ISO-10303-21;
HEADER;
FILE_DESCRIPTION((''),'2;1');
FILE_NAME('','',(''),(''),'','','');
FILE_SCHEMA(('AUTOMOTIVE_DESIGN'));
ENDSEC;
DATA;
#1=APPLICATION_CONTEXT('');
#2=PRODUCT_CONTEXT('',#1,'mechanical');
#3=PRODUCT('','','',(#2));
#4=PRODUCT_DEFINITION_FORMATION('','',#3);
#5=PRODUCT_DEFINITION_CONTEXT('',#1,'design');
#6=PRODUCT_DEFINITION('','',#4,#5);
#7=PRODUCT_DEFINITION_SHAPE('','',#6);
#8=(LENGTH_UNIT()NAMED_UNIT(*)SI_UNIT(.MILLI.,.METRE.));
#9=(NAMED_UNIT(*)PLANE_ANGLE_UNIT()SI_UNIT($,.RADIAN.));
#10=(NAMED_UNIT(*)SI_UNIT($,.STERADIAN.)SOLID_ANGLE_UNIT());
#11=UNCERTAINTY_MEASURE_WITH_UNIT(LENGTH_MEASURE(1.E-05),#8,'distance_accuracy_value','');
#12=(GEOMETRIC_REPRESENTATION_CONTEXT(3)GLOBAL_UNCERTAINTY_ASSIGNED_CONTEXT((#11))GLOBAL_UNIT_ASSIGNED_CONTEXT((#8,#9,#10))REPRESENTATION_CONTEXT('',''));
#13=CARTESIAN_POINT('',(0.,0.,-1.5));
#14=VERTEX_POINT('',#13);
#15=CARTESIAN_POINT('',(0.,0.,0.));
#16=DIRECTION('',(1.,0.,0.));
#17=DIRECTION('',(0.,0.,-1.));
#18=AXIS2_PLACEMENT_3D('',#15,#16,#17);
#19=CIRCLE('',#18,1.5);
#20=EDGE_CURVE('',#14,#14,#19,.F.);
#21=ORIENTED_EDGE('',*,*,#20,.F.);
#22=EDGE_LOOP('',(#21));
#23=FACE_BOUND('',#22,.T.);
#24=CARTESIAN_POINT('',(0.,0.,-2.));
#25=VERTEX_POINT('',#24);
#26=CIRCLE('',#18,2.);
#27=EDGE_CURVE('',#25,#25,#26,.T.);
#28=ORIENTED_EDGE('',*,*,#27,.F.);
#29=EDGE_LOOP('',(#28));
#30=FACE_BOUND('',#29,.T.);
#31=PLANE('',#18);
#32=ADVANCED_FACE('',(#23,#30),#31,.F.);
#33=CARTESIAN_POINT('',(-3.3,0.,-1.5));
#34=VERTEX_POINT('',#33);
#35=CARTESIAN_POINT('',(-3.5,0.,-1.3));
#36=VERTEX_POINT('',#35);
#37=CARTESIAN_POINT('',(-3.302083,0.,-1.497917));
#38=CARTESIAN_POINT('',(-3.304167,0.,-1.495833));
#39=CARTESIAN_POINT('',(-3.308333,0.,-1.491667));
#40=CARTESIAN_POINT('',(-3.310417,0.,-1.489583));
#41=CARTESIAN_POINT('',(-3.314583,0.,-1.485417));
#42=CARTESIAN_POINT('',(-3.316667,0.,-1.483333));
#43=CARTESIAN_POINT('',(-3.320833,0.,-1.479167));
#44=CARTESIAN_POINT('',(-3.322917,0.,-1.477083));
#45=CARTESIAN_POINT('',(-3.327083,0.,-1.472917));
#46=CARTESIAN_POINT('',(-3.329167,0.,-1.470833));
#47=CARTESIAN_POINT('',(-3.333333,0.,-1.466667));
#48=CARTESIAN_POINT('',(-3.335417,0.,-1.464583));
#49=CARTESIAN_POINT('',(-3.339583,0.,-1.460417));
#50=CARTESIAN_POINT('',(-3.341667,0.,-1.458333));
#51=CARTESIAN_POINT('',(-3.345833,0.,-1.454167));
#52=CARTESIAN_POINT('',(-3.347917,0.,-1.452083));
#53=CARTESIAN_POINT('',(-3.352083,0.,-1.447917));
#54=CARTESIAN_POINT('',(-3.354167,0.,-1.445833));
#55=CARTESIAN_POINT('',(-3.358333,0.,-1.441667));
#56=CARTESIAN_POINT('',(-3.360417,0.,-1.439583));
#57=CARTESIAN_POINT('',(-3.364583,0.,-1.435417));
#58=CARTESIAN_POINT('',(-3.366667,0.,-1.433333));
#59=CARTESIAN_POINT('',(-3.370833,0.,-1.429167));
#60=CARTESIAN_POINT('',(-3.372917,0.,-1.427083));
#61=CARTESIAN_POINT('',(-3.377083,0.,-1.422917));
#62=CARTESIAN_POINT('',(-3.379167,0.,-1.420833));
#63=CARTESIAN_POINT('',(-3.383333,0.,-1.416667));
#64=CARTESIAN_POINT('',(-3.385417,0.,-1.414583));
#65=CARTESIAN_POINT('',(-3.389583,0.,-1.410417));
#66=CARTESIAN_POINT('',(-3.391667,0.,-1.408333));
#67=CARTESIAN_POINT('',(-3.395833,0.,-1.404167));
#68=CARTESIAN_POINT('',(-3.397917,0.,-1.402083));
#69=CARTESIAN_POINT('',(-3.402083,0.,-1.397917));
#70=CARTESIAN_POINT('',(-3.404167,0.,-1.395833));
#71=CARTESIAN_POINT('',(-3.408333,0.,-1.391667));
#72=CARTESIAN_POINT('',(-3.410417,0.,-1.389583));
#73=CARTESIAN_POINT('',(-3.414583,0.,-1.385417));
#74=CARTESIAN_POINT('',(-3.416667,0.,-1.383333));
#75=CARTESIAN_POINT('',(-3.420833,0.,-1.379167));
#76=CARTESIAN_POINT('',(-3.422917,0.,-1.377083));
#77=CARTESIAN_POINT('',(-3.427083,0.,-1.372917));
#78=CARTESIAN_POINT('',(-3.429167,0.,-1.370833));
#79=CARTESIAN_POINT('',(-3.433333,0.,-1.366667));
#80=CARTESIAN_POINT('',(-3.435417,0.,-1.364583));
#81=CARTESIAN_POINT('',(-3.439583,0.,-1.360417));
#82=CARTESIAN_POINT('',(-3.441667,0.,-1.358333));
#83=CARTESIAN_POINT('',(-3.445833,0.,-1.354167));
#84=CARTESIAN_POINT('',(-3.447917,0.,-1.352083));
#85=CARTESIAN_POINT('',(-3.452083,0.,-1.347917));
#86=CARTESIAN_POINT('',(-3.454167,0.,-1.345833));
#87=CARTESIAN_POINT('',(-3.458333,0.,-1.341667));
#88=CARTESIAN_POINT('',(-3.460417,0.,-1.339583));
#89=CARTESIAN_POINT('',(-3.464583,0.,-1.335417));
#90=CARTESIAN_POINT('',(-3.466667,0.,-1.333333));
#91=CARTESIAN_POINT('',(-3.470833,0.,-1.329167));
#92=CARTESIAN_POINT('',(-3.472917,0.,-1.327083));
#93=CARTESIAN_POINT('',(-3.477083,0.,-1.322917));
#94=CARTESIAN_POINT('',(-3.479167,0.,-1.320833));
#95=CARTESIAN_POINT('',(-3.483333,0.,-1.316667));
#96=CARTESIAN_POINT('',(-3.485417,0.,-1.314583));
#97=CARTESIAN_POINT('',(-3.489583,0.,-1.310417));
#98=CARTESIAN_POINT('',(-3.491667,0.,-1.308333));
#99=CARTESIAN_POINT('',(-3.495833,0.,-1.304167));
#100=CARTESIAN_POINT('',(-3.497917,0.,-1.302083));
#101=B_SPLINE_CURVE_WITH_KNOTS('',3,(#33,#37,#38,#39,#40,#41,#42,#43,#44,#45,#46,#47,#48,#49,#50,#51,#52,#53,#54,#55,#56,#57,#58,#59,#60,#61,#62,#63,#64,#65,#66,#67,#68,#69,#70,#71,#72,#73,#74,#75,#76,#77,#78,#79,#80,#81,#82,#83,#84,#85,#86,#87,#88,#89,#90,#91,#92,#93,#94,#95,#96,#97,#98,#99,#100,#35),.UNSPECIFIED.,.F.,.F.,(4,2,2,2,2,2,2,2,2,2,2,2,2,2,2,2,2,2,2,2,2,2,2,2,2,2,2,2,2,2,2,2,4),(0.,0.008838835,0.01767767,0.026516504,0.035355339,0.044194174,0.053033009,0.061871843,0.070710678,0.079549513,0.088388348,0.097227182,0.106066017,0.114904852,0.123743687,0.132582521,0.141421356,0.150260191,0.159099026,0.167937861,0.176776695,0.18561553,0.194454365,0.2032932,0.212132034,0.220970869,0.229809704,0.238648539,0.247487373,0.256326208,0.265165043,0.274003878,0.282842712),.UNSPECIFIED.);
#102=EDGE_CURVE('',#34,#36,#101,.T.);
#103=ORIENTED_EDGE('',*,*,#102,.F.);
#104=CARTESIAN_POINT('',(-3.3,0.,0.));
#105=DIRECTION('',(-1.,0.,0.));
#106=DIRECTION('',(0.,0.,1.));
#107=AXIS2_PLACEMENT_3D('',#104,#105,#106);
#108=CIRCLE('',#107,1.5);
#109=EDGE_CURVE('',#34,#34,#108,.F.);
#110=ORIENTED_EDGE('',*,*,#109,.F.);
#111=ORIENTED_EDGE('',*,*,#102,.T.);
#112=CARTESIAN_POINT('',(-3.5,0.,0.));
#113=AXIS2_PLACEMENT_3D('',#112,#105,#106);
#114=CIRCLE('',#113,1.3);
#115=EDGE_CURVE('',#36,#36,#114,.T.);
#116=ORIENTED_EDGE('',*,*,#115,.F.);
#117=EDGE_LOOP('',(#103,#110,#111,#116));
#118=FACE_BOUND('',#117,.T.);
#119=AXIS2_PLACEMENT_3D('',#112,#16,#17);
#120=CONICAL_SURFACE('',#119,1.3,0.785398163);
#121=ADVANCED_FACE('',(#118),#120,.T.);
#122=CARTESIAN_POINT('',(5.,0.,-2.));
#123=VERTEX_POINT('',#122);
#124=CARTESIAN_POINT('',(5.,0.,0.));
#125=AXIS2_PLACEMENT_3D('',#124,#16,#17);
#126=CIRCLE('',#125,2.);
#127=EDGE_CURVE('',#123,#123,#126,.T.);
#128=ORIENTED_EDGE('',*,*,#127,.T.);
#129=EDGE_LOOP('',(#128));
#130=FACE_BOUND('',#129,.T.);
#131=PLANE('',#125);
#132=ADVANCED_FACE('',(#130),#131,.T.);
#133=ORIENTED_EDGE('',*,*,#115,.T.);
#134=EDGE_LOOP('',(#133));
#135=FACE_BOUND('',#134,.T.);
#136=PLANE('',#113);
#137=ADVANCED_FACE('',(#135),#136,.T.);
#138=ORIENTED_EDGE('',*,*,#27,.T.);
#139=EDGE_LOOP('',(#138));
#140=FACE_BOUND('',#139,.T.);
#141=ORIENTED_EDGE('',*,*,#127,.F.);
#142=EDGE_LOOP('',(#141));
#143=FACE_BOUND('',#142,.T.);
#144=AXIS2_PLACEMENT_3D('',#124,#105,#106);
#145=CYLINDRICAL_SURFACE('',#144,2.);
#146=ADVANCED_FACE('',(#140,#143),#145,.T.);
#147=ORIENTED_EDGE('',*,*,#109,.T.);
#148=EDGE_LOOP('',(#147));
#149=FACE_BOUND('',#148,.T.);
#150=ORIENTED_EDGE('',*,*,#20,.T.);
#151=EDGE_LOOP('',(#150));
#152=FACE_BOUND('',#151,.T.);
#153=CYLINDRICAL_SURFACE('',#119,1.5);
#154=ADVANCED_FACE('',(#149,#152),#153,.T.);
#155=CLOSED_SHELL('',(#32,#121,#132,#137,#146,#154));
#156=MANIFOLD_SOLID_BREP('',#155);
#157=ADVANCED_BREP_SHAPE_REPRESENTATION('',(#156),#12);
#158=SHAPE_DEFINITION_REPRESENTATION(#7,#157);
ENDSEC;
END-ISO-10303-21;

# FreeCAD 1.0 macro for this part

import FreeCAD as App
import Part
import Sketcher
Q = App.Units.Quantity


def edges_at(feature, points):
    """Names of the edges that pass closest to the given points."""
    edges = feature.Shape.Edges
    near = lambda p: min(range(len(edges)), key=lambda i: edges[i].distToShape(Part.Vertex(*p))[0])
    return sorted({f"Edge{near(p) + 1}" for p in points})

doc = App.newDocument("Part")
body = doc.addObject("PartDesign::Body", "Body")

# Sketch on YZ plane
sketch1 = body.newObject("Sketcher::SketchObject", "Sketch")
sketch1.AttachmentSupport = (doc.getObject("YZ_Plane"), [""])
sketch1.MapMode = "FlatFace"
sketch1.addGeometry(Part.Circle(App.Vector(0, 0, 0), App.Vector(0, 0, 1), 2), False)
sketch1.addConstraint(Sketcher.Constraint("Coincident", 0, 3, -1, 1))
sketch1.addConstraint(Sketcher.Constraint("Diameter", 0, Q("4 mm")))
pad1 = body.newObject("PartDesign::Pad", "Pad")
pad1.Profile = sketch1
pad1.Length = 5

# Sketch on YZ plane
sketch2 = body.newObject("Sketcher::SketchObject", "Sketch001")
sketch2.AttachmentSupport = (doc.getObject("YZ_Plane"), [""])
sketch2.MapMode = "FlatFace"
sketch2.addGeometry(Part.Circle(App.Vector(0, 0, 0), App.Vector(0, 0, 1), 1.5), False)
sketch2.addConstraint(Sketcher.Constraint("Coincident", 0, 3, -1, 1))
sketch2.addConstraint(Sketcher.Constraint("Diameter", 0, Q("3 mm")))
pad2 = body.newObject("PartDesign::Pad", "Pad001")
pad2.Profile = sketch2
pad2.Length = 3.5
pad2.Reversed = True
doc.recompute()

chamfer = body.newObject("PartDesign::Chamfer", "Chamfer")
chamfer.Base = (pad2, edges_at(pad2, [(-3.5, 0, 1.5)]))
chamfer.Size = 0.2

doc.recompute()
